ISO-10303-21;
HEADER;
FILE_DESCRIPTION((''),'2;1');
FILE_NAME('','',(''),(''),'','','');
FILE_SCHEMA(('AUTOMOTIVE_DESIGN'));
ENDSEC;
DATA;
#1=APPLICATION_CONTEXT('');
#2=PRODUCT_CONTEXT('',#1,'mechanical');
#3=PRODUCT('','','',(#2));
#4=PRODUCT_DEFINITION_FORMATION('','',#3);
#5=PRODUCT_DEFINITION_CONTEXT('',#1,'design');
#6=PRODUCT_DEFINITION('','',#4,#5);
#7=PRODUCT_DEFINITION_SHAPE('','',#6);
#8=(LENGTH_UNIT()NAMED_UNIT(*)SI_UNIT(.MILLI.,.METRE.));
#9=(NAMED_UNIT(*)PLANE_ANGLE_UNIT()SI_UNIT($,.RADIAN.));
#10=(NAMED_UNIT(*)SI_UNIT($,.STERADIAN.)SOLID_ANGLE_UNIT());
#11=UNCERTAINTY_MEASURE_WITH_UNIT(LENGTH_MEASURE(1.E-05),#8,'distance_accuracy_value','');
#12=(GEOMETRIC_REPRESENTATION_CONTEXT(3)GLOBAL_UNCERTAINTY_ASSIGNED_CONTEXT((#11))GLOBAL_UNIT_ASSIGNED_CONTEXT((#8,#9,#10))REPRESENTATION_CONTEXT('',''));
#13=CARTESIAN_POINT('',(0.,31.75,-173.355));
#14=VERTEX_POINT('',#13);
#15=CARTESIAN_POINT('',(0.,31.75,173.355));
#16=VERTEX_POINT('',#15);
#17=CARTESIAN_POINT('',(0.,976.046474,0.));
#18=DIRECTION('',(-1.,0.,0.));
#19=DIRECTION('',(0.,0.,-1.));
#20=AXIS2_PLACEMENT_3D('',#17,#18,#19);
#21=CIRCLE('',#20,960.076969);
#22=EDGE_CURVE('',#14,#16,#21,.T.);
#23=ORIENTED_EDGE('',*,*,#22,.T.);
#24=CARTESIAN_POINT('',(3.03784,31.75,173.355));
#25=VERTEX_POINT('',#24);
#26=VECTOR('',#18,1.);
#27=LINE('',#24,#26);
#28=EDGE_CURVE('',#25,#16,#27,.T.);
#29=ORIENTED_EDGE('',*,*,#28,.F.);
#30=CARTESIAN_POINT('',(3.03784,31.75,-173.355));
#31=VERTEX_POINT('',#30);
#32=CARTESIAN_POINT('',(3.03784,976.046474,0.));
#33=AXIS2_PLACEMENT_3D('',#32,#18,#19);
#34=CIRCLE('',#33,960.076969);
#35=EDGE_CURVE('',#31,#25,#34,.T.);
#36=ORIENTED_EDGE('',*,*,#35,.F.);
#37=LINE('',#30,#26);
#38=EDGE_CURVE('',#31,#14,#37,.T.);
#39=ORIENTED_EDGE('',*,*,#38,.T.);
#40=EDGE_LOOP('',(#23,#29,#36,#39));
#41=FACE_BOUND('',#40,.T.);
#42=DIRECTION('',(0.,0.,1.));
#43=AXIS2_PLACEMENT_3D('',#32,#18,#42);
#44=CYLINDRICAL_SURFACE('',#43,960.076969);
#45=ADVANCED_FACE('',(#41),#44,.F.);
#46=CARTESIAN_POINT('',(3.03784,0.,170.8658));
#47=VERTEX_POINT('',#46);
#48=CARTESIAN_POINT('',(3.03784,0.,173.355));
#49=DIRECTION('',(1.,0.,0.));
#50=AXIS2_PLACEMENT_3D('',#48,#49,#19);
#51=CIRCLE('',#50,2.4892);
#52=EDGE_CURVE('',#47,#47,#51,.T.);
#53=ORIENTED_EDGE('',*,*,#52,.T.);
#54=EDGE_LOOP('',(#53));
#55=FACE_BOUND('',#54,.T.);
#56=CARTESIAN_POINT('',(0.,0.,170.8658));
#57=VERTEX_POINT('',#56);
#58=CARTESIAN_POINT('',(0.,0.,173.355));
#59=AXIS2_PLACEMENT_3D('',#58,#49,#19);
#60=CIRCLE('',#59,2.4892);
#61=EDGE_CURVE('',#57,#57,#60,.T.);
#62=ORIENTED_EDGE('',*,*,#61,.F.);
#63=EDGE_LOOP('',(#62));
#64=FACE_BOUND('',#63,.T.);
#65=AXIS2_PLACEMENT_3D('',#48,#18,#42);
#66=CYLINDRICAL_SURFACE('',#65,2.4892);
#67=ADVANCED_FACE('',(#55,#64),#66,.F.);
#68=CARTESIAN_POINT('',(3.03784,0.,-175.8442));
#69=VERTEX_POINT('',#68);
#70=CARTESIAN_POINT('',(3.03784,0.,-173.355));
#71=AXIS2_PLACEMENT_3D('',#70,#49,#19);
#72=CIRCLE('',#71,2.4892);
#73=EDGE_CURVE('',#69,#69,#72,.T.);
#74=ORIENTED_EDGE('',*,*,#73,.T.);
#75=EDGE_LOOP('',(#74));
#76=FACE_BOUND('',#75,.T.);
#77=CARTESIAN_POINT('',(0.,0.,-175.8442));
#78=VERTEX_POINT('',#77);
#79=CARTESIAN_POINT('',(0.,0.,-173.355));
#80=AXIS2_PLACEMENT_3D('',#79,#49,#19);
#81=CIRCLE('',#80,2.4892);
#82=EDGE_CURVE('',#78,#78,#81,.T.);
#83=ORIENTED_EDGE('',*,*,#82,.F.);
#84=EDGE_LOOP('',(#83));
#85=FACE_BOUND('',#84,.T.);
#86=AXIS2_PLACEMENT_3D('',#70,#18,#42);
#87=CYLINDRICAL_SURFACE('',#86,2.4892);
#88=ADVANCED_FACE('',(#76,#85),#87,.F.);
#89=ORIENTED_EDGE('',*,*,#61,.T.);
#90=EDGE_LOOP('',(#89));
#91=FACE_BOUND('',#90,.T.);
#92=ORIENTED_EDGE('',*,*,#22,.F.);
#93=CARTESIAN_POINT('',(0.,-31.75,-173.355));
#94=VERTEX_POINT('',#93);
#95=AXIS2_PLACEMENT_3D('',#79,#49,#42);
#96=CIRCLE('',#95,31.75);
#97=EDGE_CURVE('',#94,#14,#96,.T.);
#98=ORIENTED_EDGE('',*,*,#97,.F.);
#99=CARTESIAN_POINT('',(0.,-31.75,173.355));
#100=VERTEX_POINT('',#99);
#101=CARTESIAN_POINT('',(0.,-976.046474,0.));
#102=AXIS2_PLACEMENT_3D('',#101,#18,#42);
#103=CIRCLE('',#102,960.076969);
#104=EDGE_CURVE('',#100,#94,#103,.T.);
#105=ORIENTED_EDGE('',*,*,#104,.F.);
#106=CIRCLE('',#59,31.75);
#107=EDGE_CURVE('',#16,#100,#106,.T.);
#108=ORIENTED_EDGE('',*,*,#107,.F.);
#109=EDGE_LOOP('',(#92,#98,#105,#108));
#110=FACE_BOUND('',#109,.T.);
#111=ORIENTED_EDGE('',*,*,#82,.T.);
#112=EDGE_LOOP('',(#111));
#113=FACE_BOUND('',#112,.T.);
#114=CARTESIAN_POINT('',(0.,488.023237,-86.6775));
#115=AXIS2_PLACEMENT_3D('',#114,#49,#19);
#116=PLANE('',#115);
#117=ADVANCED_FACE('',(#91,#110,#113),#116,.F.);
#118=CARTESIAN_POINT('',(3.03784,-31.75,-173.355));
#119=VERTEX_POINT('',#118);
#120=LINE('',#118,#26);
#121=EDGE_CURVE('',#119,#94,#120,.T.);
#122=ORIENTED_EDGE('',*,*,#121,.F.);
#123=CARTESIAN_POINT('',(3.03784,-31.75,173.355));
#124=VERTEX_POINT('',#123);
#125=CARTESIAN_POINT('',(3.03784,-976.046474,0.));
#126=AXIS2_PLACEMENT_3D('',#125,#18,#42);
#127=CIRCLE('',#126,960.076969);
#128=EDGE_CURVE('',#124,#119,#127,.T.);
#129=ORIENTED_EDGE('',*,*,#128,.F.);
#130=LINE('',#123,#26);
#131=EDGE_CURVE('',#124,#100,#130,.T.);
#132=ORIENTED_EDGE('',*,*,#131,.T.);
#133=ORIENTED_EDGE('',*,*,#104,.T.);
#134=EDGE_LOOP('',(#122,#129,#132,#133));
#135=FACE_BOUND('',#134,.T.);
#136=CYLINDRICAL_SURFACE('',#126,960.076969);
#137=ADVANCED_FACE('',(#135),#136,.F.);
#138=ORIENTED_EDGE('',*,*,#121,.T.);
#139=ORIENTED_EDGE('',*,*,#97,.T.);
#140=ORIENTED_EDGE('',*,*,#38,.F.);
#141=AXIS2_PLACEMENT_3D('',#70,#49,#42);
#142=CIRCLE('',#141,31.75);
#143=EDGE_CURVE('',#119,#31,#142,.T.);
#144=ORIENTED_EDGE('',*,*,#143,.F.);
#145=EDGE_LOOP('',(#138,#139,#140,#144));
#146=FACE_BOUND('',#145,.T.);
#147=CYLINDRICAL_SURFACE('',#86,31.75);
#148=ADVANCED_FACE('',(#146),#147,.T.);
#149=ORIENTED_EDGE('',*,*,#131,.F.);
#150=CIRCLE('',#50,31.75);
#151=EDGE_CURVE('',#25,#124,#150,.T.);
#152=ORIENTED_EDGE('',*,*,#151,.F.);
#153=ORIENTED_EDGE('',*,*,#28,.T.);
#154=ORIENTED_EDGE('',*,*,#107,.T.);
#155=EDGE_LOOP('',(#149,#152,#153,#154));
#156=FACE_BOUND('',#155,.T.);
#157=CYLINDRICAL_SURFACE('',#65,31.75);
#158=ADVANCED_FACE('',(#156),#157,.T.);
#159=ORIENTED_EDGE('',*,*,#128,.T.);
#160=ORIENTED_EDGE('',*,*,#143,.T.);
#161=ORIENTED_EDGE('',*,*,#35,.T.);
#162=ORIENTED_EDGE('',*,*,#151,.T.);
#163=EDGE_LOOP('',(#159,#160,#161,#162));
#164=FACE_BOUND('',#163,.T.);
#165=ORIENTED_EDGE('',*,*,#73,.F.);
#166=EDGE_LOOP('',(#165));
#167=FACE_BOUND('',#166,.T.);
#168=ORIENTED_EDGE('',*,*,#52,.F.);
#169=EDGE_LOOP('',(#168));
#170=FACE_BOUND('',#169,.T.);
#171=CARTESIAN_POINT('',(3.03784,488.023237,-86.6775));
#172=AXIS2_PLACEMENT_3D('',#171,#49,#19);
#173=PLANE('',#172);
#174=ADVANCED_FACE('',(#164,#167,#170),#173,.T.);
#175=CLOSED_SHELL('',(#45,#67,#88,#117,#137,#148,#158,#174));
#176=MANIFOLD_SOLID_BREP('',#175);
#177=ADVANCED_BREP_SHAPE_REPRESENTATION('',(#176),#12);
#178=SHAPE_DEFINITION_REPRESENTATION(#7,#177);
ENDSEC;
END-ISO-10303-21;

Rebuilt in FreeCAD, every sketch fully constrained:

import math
import FreeCAD as App
import Part
import Sketcher

V = App.Vector
Q = App.Units.Quantity

doc = App.newDocument("Part")
body = doc.addObject("PartDesign::Body", "Body")

# Sketch on YZ plane
sketch1 = body.newObject("Sketcher::SketchObject", "Sketch")
sketch1.AttachmentSupport = (doc.getObject("YZ_Plane"), [""])
sketch1.MapMode = "FlatFace"
sketch1.addGeometry(Part.ArcOfCircle(Part.Circle(V(0, 173.355, 0), V(0, 0, 1), 31.75), math.radians(0), math.radians(180)), False)
sketch1.addGeometry(Part.ArcOfCircle(Part.Circle(V(-976.046474, 0, 0), V(0, 0, 1), 960.076969), math.radians(-10.402592), math.radians(10.402592)), False)
sketch1.addGeometry(Part.ArcOfCircle(Part.Circle(V(0, -173.355, 0), V(0, 0, 1), 31.75), math.radians(180), math.radians(360)), False)
sketch1.addGeometry(Part.ArcOfCircle(Part.Circle(V(976.046474, 0, 0), V(0, 0, 1), 960.076969), math.radians(169.597408), math.radians(190.402592)), False)
sketch1.addGeometry(Part.Circle(V(0, 173.355, 0), V(0, 0, 1), 2.4892), False)
sketch1.addGeometry(Part.Circle(V(0, -173.355, 0), V(0, 0, 1), 2.4892), False)
sketch1.addConstraint(Sketcher.Constraint("Coincident", 0, 2, 1, 2))
sketch1.addConstraint(Sketcher.Constraint("Coincident", 1, 1, 2, 1))
sketch1.addConstraint(Sketcher.Constraint("Coincident", 2, 2, 3, 2))
sketch1.addConstraint(Sketcher.Constraint("Coincident", 3, 1, 0, 1))
sketch1.addConstraint(Sketcher.Constraint("Coincident", 4, 3, 0, 3))
sketch1.addConstraint(Sketcher.Constraint("Coincident", 5, 3, 2, 3))
sketch1.addConstraint(Sketcher.Constraint("Equal", 0, 2))
sketch1.addConstraint(Sketcher.Constraint("Equal", 1, 3))
sketch1.addConstraint(Sketcher.Constraint("Equal", 4, 5))
sketch1.addConstraint(Sketcher.Constraint("Symmetric", 0, 3, 2, 3, -1, 1))
sketch1.addConstraint(Sketcher.Constraint("Symmetric", 1, 3, 3, 3, -1, 1))
sketch1.addConstraint(Sketcher.Constraint("PointOnObject", 0, 3, -2))
sketch1.addConstraint(Sketcher.Constraint("PointOnObject", 1, 3, -1))
sketch1.addConstraint(Sketcher.Constraint("Horizontal", 4, 3, 0, 2))
sketch1.addConstraint(Sketcher.Constraint("Radius", 0, Q("1.25 in")))
sketch1.addConstraint(Sketcher.Constraint("Diameter", 4, Q("0.196 in")))
sketch1.addConstraint(Sketcher.Constraint("DistanceY", 2, 3, 0, 3, Q("13.65 in")))
sketch1.addConstraint(Sketcher.Constraint("Radius", 1, 960.076969))
pad1 = body.newObject("PartDesign::Pad", "Pad")
pad1.Profile = sketch1
pad1.Length = Q("0.1196 in")

doc.recompute()
